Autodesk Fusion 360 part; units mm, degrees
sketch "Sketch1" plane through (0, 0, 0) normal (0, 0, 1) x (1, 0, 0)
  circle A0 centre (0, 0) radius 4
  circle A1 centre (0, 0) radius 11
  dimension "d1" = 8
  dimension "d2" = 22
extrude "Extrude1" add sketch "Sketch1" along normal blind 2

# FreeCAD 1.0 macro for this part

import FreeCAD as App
import Part
import Sketcher

doc = App.newDocument("Part")
body = doc.addObject("PartDesign::Body", "Body")

# Sketch on XY plane
sketch1 = doc.addObject("Sketcher::SketchObject", "Sketch")
body.addObject(sketch1)
sketch1.AttachmentSupport = (doc.XY_Plane, [""])
sketch1.MapMode = "FlatFace"
sketch1.addGeometry([
    Part.Circle(App.Vector(0, 0, 0), App.Vector(0, 0, 1), 11),
    Part.Circle(App.Vector(0, 0, 0), App.Vector(0, 0, 1), 4),
], False)
sketch1.addConstraint([
    Sketcher.Constraint("Coincident", 0, 3, -1, 1),
    Sketcher.Constraint("Coincident", 1, 3, -1, 1),
    Sketcher.Constraint("Diameter", 0, 22.0),
    Sketcher.Constraint("Diameter", 1, 8.0),
])
pad1 = doc.addObject("PartDesign::Pad", "Pad")
body.addObject(pad1)
pad1.Profile = sketch1
pad1.Length = 2

doc.recompute()
